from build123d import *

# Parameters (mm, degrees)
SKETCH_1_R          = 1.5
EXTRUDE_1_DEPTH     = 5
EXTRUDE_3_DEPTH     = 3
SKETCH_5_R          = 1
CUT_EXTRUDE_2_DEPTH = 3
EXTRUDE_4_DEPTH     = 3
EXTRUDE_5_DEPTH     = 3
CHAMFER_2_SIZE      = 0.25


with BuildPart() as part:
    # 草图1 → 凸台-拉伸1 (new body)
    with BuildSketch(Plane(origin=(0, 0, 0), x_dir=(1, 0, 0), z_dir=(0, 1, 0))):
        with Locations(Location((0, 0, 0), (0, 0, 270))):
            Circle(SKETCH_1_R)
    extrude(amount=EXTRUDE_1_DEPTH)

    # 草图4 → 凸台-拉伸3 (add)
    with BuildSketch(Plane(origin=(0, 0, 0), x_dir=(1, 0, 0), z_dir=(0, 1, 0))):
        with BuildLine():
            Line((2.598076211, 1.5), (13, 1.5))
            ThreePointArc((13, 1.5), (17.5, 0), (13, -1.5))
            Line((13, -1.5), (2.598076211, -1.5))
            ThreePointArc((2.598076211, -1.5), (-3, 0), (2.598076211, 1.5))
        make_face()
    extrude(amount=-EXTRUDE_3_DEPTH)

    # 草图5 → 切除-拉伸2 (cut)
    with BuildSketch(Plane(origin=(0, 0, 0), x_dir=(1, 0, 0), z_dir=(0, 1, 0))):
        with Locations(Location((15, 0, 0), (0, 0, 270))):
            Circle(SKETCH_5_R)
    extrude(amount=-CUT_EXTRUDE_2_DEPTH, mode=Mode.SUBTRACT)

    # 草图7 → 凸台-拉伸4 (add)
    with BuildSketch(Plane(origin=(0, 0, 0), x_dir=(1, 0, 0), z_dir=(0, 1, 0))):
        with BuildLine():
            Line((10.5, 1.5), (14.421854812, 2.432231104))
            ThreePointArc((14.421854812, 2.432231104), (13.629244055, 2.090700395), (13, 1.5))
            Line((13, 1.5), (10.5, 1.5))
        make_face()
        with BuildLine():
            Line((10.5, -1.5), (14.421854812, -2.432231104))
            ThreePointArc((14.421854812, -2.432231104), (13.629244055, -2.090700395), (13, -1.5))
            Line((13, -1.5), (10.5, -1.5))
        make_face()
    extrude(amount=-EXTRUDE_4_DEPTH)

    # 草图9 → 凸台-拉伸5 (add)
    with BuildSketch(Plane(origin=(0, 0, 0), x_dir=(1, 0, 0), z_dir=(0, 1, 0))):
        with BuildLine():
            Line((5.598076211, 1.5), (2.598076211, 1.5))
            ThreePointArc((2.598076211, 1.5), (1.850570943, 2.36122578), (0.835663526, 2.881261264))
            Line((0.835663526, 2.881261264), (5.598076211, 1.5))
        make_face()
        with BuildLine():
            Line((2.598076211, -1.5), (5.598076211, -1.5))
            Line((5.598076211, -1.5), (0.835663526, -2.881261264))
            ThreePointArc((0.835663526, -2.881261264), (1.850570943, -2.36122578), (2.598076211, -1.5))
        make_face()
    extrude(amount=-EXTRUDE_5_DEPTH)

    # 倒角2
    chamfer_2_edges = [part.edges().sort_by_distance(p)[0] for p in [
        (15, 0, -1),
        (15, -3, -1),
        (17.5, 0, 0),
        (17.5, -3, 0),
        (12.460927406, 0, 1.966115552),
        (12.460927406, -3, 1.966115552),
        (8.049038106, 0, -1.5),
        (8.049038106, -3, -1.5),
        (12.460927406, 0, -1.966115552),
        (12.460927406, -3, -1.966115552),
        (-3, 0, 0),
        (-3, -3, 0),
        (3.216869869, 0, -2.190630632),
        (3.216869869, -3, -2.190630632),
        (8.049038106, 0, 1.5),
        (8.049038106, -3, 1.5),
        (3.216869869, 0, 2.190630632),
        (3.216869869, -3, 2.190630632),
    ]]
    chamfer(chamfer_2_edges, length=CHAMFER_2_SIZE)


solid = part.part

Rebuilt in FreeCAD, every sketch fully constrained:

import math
import FreeCAD as App
import Part
import Sketcher


def edges_at(feature, points):
    """Names of the edges that pass closest to the given points."""
    edges = feature.Shape.Edges
    near = lambda p: min(range(len(edges)), key=lambda i: edges[i].distToShape(Part.Vertex(*p))[0])
    return sorted({f"Edge{near(p) + 1}" for p in points})

doc = App.newDocument("Part")
body = doc.addObject("PartDesign::Body", "Body")

# Sketch on XZ plane
sketch1 = body.newObject("Sketcher::SketchObject", "Sketch")
sketch1.AttachmentSupport = (doc.getObject("XZ_Plane"), [""])
sketch1.MapMode = "FlatFace"
sketch1.addGeometry(Part.Circle(App.Vector(0, 0, 0), App.Vector(0, 0, 1), 1.5), False)
sketch1.addConstraint([
    Sketcher.Constraint("Coincident", 0, 3, -1, 1),
    Sketcher.Constraint("Diameter", 0, 3.0),
])
pad1 = body.newObject("PartDesign::Pad", "Pad")
pad1.Profile = sketch1
pad1.Length = 5
pad1.Reversed = True

# Sketch on XZ plane
sketch2 = body.newObject("Sketcher::SketchObject", "Sketch001")
sketch2.AttachmentSupport = (doc.getObject("XZ_Plane"), [""])
sketch2.MapMode = "FlatFace"
sketch2.addGeometry([
    Part.LineSegment(App.Vector(13, -1.5, 0), App.Vector(2.6, -1.5, 0)),
    Part.ArcOfCircle(Part.Circle(App.Vector(0, 0, 0), App.Vector(0, 0, 1), 3), math.radians(30), math.radians(330)),
    Part.LineSegment(App.Vector(2.6, 1.5, 0), App.Vector(13, 1.5, 0)),
    Part.ArcOfCircle(Part.Circle(App.Vector(15, 0, 0), App.Vector(0, 0, 1), 2.5), math.radians(-143), math.radians(143)),
], False)
sketch2.addConstraint([
    Sketcher.Constraint("Coincident", 0, 2, 1, 2),
    Sketcher.Constraint("Coincident", 1, 1, 2, 1),
    Sketcher.Constraint("Coincident", 2, 2, 3, 2),
    Sketcher.Constraint("Coincident", 3, 1, 0, 1),
    Sketcher.Constraint("Horizontal", 0),
    Sketcher.Constraint("Horizontal", 2),
    Sketcher.Constraint("Coincident", 1, 3, -1, 1),
    Sketcher.Constraint("Symmetric", 2, 2, 3, 1, -1),
    Sketcher.Constraint("Radius", 1, 3.0),
    Sketcher.Constraint("Radius", 3, 2.5),
    Sketcher.Constraint("DistanceX", -1, 1, 3, 3, 15.0),
    Sketcher.Constraint("DistanceX", -1, 1, 2, 2, 13.0),
])
pad2 = body.newObject("PartDesign::Pad", "Pad001")
pad2.Profile = sketch2
pad2.Length = 3

# Sketch on XZ plane
sketch3 = body.newObject("Sketcher::SketchObject", "Sketch002")
sketch3.AttachmentSupport = (doc.getObject("XZ_Plane"), [""])
sketch3.MapMode = "FlatFace"
sketch3.addGeometry(Part.Circle(App.Vector(15, 0, 0), App.Vector(0, 0, 1), 1), False)
sketch3.addConstraint([
    Sketcher.Constraint("PointOnObject", 0, 3, -1),
    Sketcher.Constraint("Diameter", 0, 2.0),
    Sketcher.Constraint("DistanceX", -1, 1, 0, 3, 15.0),
])
pocket1 = body.newObject("PartDesign::Pocket", "Pocket")
pocket1.Profile = sketch3
pocket1.Length = 3
pocket1.Reversed = True

# Sketch on XZ plane
sketch4 = body.newObject("Sketcher::SketchObject", "Sketch003")
sketch4.AttachmentSupport = (doc.getObject("XZ_Plane"), [""])
sketch4.MapMode = "FlatFace"
sketch4.addGeometry([
    Part.LineSegment(App.Vector(14.4, -2.4, 0), App.Vector(10.5, -1.5, 0)),  # 0
    Part.LineSegment(App.Vector(10.5, -1.5, 0), App.Vector(13, -1.5, 0)),  # 1
    Part.ArcOfCircle(Part.Circle(App.Vector(15, 0, 0), App.Vector(0, 0, 1), 2.5), math.radians(-143), math.radians(-103)),  # 2
    Part.LineSegment(App.Vector(10.5, 1.5, 0), App.Vector(14.4, 2.4, 0)),  # 3
    Part.ArcOfCircle(Part.Circle(App.Vector(15, 0, 0), App.Vector(0, 0, 1), 2.5), math.radians(103), math.radians(143)),  # 4
    Part.LineSegment(App.Vector(13, 1.5, 0), App.Vector(10.5, 1.5, 0)),  # 5
], False)
sketch4.addConstraint([
    Sketcher.Constraint("Coincident", 0, 2, 1, 1),
    Sketcher.Constraint("Coincident", 1, 2, 2, 1),
    Sketcher.Constraint("Tangent", 2, 2, 0, 1),
    Sketcher.Constraint("Tangent", 3, 2, 4, 1),
    Sketcher.Constraint("Coincident", 4, 2, 5, 1),
    Sketcher.Constraint("Coincident", 5, 2, 3, 1),
    Sketcher.Constraint("Horizontal", 1),
    Sketcher.Constraint("Horizontal", 5),
    Sketcher.Constraint("Coincident", 4, 3, 2, 3),
    Sketcher.Constraint("Equal", 2, 4),
    Sketcher.Constraint("Symmetric", 2, 2, 3, 2, -1),
    Sketcher.Constraint("Vertical", 1, 2, 4, 2),
    Sketcher.Constraint("Radius", 2, 2.5),
    Sketcher.Constraint("DistanceX", 1, 1, 1, 2, 2.5),
    Sketcher.Constraint("DistanceX", -1, 1, 2, 3, 15.0),
    Sketcher.Constraint("DistanceX", -1, 1, 1, 2, 13.0),
])
pad3 = body.newObject("PartDesign::Pad", "Pad002")
pad3.Profile = sketch4
pad3.Length = 3

# Sketch on XZ plane
sketch5 = body.newObject("Sketcher::SketchObject", "Sketch004")
sketch5.AttachmentSupport = (doc.getObject("XZ_Plane"), [""])
sketch5.MapMode = "FlatFace"
sketch5.addGeometry([
    Part.LineSegment(App.Vector(2.6, -1.5, 0), App.Vector(5.6, -1.5, 0)),  # 0
    Part.LineSegment(App.Vector(5.6, -1.5, 0), App.Vector(0.8, -2.9, 0)),  # 1
    Part.ArcOfCircle(Part.Circle(App.Vector(0, 0, 0), App.Vector(0, 0, 1), 3), math.radians(-74), math.radians(-30)),  # 2
    Part.LineSegment(App.Vector(5.6, 1.5, 0), App.Vector(2.6, 1.5, 0)),  # 3
    Part.ArcOfCircle(Part.Circle(App.Vector(0, 0, 0), App.Vector(0, 0, 1), 3), math.radians(30), math.radians(74)),  # 4
    Part.LineSegment(App.Vector(0.8, 2.9, 0), App.Vector(5.6, 1.5, 0)),  # 5
], False)
sketch5.addConstraint([
    Sketcher.Constraint("Coincident", 0, 2, 1, 1),
    Sketcher.Constraint("Tangent", 1, 2, 2, 1),
    Sketcher.Constraint("Coincident", 2, 2, 0, 1),
    Sketcher.Constraint("Coincident", 3, 2, 4, 1),
    Sketcher.Constraint("Tangent", 4, 2, 5, 1),
    Sketcher.Constraint("Coincident", 5, 2, 3, 1),
    Sketcher.Constraint("Horizontal", 0),
    Sketcher.Constraint("Horizontal", 3),
    Sketcher.Constraint("Coincident", 2, 3, -1, 1),
    Sketcher.Constraint("Coincident", 4, 3, -1, 1),
    Sketcher.Constraint("Equal", 2, 4),
    Sketcher.Constraint("Symmetric", 0, 2, 5, 2, -1),
    Sketcher.Constraint("Radius", 2, 3.0),
    Sketcher.Constraint("DistanceX", 0, 1, 0, 2, 3.0),
    Sketcher.Constraint("DistanceY", 2, 2, 3, 2, 3.0),
])
pad4 = body.newObject("PartDesign::Pad", "Pad003")
pad4.Profile = sketch5
pad4.Length = 3
doc.recompute()

chamfer = body.newObject("PartDesign::Chamfer", "Chamfer")
chamfer.Base = (pad4, edges_at(pad4, [
    (15, 0, -1),
    (15, -3, -1),
    (17.5, 0, 0),
    (17.5, -3, 0),
    (12.461, 0, 1.966),
    (12.461, -3, 1.966),
    (8.049, 0, -1.5),
    (8.049, -3, -1.5),
    (12.461, 0, -1.966),
    (12.461, -3, -1.966),
    (-3, 0, 0),
    (-3, -3, 0),
    (3.217, 0, -2.191),
    (3.217, -3, -2.191),
    (8.049, 0, 1.5),
    (8.049, -3, 1.5),
    (3.217, 0, 2.191),
    (3.217, -3, 2.191),
]))
chamfer.Size = 0.25

doc.recompute()
